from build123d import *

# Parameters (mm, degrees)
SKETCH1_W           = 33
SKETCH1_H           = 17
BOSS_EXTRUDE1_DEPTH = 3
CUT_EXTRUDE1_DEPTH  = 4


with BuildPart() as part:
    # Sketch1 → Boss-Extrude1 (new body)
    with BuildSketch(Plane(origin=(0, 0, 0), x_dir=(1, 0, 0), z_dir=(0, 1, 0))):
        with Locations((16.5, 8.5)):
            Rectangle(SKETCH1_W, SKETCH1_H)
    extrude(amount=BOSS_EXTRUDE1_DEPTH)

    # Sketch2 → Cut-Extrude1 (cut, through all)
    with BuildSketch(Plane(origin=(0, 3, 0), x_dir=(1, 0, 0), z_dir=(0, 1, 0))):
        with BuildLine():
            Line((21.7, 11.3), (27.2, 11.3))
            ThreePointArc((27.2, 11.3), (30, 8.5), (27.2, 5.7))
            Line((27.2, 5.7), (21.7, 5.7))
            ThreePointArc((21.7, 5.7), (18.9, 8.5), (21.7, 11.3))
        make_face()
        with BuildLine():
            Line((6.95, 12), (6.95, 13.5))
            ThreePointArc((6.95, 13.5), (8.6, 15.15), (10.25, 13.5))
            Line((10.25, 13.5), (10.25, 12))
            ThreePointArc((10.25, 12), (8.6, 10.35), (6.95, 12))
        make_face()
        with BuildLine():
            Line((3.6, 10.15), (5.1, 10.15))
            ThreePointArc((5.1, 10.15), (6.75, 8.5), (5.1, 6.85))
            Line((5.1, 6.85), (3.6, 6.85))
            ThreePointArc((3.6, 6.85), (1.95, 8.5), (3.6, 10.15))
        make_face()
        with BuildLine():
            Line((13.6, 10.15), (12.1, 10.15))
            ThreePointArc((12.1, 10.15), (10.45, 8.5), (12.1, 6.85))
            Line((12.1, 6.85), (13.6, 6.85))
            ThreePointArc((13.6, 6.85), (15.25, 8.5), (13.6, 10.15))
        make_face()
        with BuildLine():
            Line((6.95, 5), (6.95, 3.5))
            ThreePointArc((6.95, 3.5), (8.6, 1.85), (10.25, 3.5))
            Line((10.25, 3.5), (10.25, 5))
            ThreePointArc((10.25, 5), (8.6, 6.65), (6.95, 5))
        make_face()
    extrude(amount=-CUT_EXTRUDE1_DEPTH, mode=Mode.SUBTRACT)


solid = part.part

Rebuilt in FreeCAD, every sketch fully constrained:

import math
import FreeCAD as App
import Part
import Sketcher

V = App.Vector
Q = App.Units.Quantity


def add_polygon(sketch, points):
    """Adds a closed chain of lines whose ends are joined by coincident constraints."""
    first, n = sketch.GeometryCount, len(points)
    for a, b in zip(points, points[1:] + points[:1]):
        sketch.addGeometry(Part.LineSegment(App.Vector(*a, 0), App.Vector(*b, 0)), False)
    for i in range(n):
        sketch.addConstraint(Sketcher.Constraint("Coincident", first + i, 2, first + (i + 1) % n, 1))

doc = App.newDocument("Part")
body = doc.addObject("PartDesign::Body", "Body")

sketch1 = body.newObject("Sketcher::SketchObject", "Sketch")
sketch1.AttachmentSupport = (doc.getObject("XZ_Plane"), [""])
sketch1.MapMode = "FlatFace"
add_polygon(sketch1, [(0, -17), (0, 0), (33, 0), (33, -17)])
sketch1.addConstraint([
    Sketcher.Constraint("Vertical", 0),
    Sketcher.Constraint("Horizontal", 1),
    Sketcher.Constraint("Vertical", 2),
    Sketcher.Constraint("Horizontal", 3),
    Sketcher.Constraint("Coincident", 0, 2, -1, 1),
    Sketcher.Constraint("DistanceX", 1, 1, 1, 2, Q("33 mm")),
    Sketcher.Constraint("DistanceY", 0, 1, 0, 2, Q("17 mm")),
])
pad1 = body.newObject("PartDesign::Pad", "Pad")
pad1.Profile = sketch1
pad1.Length = 3
pad1.Reversed = True

sketch2 = body.newObject("Sketcher::SketchObject", "Sketch001")
sketch2.AttachmentSupport = (doc.getObject("XZ_Plane"), [""])
sketch2.MapMode = "FlatFace"
sketch2.AttachmentOffset = App.Placement(V(0, 0, -3), App.Rotation())
sketch2.addGeometry([
    Part.LineSegment(V(27.2, -11.3, 0), V(21.7, -11.3, 0)),
    Part.ArcOfCircle(Part.Circle(V(21.7, -8.5, 0), V(0, 0, 1), 2.8), math.radians(90), math.radians(270)),
    Part.LineSegment(V(21.7, -5.7, 0), V(27.2, -5.7, 0)),
    Part.ArcOfCircle(Part.Circle(V(27.2, -8.5, 0), V(0, 0, 1), 2.8), math.radians(-90), math.radians(90)),
    Part.LineSegment(V(7, -13.5, 0), V(7, -12, 0)),
    Part.ArcOfCircle(Part.Circle(V(8.6, -12, 0), V(0, 0, 1), 1.6), math.radians(0), math.radians(180)),
    Part.LineSegment(V(10.2, -12, 0), V(10.2, -13.5, 0)),
    Part.ArcOfCircle(Part.Circle(V(8.6, -13.5, 0), V(0, 0, 1), 1.6), math.radians(180), math.radians(360)),
    Part.LineSegment(V(5.1, -10.2, 0), V(3.6, -10.2, 0)),
    Part.ArcOfCircle(Part.Circle(V(3.6, -8.5, 0), V(0, 0, 1), 1.6), math.radians(90), math.radians(270)),
    Part.LineSegment(V(3.6, -6.8, 0), V(5.1, -6.8, 0)),
    Part.ArcOfCircle(Part.Circle(V(5.1, -8.5, 0), V(0, 0, 1), 1.6), math.radians(-90), math.radians(90)),
    Part.LineSegment(V(13.6, -10.2, 0), V(12.1, -10.2, 0)),
    Part.ArcOfCircle(Part.Circle(V(12.1, -8.5, 0), V(0, 0, 1), 1.6), math.radians(90), math.radians(270)),
    Part.LineSegment(V(12.1, -6.8, 0), V(13.6, -6.8, 0)),
    Part.ArcOfCircle(Part.Circle(V(13.6, -8.5, 0), V(0, 0, 1), 1.6), math.radians(-90), math.radians(90)),
    Part.LineSegment(V(7, -5, 0), V(7, -3.5, 0)),
    Part.ArcOfCircle(Part.Circle(V(8.6, -3.5, 0), V(0, 0, 1), 1.6), math.radians(0), math.radians(180)),
    Part.LineSegment(V(10.2, -3.5, 0), V(10.2, -5, 0)),
    Part.ArcOfCircle(Part.Circle(V(8.6, -5, 0), V(0, 0, 1), 1.6), math.radians(180), math.radians(360)),
], False)
sketch2.addConstraint([
    Sketcher.Constraint("Tangent", 0, 2, 1, 2),
    Sketcher.Constraint("Tangent", 1, 1, 2, 1),
    Sketcher.Constraint("Tangent", 2, 2, 3, 2),
    Sketcher.Constraint("Tangent", 3, 1, 0, 1),
    Sketcher.Constraint("Tangent", 4, 2, 5, 2),
    Sketcher.Constraint("Tangent", 5, 1, 6, 1),
    Sketcher.Constraint("Tangent", 6, 2, 7, 2),
    Sketcher.Constraint("Tangent", 7, 1, 4, 1),
    Sketcher.Constraint("Tangent", 8, 2, 9, 2),
    Sketcher.Constraint("Tangent", 9, 1, 10, 1),
    Sketcher.Constraint("Tangent", 10, 2, 11, 2),
    Sketcher.Constraint("Tangent", 11, 1, 8, 1),
    Sketcher.Constraint("Tangent", 12, 2, 13, 2),
    Sketcher.Constraint("Tangent", 13, 1, 14, 1),
    Sketcher.Constraint("Tangent", 14, 2, 15, 2),
    Sketcher.Constraint("Tangent", 15, 1, 12, 1),
    Sketcher.Constraint("Tangent", 16, 2, 17, 2),
    Sketcher.Constraint("Tangent", 17, 1, 18, 1),
    Sketcher.Constraint("Tangent", 18, 2, 19, 2),
    Sketcher.Constraint("Tangent", 19, 1, 16, 1),
    Sketcher.Constraint("Horizontal", 0),
    Sketcher.Constraint("Horizontal", 2),
    Sketcher.Constraint("Vertical", 4),
    Sketcher.Constraint("Vertical", 6),
    Sketcher.Constraint("Horizontal", 8),
    Sketcher.Constraint("Horizontal", 10),
    Sketcher.Constraint("Horizontal", 12),
    Sketcher.Constraint("Horizontal", 14),
    Sketcher.Constraint("Vertical", 16),
    Sketcher.Constraint("Vertical", 18),
    Sketcher.Constraint("Equal", 7, 9),
    Sketcher.Constraint("Equal", 11, 13),
    Sketcher.Constraint("Equal", 15, 17),
    Sketcher.Constraint("Horizontal", 3, 3, 9, 3),
    Sketcher.Constraint("Horizontal", 11, 3, 13, 3),
    Sketcher.Constraint("Vertical", 7, 3, 17, 3),
    Sketcher.Constraint("Equal", 10, 12),
    Sketcher.Constraint("Equal", 14, 4),
    Sketcher.Constraint("Equal", 6, 16),
    Sketcher.Constraint("Radius", 1, Q("2.8 mm")),
    Sketcher.Constraint("Radius", 5, Q("1.65 mm")),
    Sketcher.Constraint("DistanceX", 0, 2, 0, 1, Q("5.5 mm")),
    Sketcher.Constraint("DistanceX", 8, 2, 8, 1, Q("1.5 mm")),
    Sketcher.Constraint("DistanceY", 5, 3, -1, 1, Q("12 mm")),
    Sketcher.Constraint("DistanceY", 19, 3, -1, 1, Q("5 mm")),
    Sketcher.Constraint("DistanceY", 7, 3, 1, 3, Q("5 mm")),
    Sketcher.Constraint("DistanceX", 9, 3, 5, 3, Q("5 mm")),
    Sketcher.Constraint("DistanceX", 11, 3, 13, 3, Q("7 mm")),
    Sketcher.Constraint("DistanceX", -1, 1, 1, 3, Q("21.7 mm")),
    Sketcher.Constraint("DistanceX", -1, 1, 5, 3, Q("8.6 mm")),
])
pocket1 = body.newObject("PartDesign::Pocket", "Pocket")
pocket1.Profile = sketch2
pocket1.Type = "ThroughAll"
pocket1.Reversed = True

doc.recompute()
